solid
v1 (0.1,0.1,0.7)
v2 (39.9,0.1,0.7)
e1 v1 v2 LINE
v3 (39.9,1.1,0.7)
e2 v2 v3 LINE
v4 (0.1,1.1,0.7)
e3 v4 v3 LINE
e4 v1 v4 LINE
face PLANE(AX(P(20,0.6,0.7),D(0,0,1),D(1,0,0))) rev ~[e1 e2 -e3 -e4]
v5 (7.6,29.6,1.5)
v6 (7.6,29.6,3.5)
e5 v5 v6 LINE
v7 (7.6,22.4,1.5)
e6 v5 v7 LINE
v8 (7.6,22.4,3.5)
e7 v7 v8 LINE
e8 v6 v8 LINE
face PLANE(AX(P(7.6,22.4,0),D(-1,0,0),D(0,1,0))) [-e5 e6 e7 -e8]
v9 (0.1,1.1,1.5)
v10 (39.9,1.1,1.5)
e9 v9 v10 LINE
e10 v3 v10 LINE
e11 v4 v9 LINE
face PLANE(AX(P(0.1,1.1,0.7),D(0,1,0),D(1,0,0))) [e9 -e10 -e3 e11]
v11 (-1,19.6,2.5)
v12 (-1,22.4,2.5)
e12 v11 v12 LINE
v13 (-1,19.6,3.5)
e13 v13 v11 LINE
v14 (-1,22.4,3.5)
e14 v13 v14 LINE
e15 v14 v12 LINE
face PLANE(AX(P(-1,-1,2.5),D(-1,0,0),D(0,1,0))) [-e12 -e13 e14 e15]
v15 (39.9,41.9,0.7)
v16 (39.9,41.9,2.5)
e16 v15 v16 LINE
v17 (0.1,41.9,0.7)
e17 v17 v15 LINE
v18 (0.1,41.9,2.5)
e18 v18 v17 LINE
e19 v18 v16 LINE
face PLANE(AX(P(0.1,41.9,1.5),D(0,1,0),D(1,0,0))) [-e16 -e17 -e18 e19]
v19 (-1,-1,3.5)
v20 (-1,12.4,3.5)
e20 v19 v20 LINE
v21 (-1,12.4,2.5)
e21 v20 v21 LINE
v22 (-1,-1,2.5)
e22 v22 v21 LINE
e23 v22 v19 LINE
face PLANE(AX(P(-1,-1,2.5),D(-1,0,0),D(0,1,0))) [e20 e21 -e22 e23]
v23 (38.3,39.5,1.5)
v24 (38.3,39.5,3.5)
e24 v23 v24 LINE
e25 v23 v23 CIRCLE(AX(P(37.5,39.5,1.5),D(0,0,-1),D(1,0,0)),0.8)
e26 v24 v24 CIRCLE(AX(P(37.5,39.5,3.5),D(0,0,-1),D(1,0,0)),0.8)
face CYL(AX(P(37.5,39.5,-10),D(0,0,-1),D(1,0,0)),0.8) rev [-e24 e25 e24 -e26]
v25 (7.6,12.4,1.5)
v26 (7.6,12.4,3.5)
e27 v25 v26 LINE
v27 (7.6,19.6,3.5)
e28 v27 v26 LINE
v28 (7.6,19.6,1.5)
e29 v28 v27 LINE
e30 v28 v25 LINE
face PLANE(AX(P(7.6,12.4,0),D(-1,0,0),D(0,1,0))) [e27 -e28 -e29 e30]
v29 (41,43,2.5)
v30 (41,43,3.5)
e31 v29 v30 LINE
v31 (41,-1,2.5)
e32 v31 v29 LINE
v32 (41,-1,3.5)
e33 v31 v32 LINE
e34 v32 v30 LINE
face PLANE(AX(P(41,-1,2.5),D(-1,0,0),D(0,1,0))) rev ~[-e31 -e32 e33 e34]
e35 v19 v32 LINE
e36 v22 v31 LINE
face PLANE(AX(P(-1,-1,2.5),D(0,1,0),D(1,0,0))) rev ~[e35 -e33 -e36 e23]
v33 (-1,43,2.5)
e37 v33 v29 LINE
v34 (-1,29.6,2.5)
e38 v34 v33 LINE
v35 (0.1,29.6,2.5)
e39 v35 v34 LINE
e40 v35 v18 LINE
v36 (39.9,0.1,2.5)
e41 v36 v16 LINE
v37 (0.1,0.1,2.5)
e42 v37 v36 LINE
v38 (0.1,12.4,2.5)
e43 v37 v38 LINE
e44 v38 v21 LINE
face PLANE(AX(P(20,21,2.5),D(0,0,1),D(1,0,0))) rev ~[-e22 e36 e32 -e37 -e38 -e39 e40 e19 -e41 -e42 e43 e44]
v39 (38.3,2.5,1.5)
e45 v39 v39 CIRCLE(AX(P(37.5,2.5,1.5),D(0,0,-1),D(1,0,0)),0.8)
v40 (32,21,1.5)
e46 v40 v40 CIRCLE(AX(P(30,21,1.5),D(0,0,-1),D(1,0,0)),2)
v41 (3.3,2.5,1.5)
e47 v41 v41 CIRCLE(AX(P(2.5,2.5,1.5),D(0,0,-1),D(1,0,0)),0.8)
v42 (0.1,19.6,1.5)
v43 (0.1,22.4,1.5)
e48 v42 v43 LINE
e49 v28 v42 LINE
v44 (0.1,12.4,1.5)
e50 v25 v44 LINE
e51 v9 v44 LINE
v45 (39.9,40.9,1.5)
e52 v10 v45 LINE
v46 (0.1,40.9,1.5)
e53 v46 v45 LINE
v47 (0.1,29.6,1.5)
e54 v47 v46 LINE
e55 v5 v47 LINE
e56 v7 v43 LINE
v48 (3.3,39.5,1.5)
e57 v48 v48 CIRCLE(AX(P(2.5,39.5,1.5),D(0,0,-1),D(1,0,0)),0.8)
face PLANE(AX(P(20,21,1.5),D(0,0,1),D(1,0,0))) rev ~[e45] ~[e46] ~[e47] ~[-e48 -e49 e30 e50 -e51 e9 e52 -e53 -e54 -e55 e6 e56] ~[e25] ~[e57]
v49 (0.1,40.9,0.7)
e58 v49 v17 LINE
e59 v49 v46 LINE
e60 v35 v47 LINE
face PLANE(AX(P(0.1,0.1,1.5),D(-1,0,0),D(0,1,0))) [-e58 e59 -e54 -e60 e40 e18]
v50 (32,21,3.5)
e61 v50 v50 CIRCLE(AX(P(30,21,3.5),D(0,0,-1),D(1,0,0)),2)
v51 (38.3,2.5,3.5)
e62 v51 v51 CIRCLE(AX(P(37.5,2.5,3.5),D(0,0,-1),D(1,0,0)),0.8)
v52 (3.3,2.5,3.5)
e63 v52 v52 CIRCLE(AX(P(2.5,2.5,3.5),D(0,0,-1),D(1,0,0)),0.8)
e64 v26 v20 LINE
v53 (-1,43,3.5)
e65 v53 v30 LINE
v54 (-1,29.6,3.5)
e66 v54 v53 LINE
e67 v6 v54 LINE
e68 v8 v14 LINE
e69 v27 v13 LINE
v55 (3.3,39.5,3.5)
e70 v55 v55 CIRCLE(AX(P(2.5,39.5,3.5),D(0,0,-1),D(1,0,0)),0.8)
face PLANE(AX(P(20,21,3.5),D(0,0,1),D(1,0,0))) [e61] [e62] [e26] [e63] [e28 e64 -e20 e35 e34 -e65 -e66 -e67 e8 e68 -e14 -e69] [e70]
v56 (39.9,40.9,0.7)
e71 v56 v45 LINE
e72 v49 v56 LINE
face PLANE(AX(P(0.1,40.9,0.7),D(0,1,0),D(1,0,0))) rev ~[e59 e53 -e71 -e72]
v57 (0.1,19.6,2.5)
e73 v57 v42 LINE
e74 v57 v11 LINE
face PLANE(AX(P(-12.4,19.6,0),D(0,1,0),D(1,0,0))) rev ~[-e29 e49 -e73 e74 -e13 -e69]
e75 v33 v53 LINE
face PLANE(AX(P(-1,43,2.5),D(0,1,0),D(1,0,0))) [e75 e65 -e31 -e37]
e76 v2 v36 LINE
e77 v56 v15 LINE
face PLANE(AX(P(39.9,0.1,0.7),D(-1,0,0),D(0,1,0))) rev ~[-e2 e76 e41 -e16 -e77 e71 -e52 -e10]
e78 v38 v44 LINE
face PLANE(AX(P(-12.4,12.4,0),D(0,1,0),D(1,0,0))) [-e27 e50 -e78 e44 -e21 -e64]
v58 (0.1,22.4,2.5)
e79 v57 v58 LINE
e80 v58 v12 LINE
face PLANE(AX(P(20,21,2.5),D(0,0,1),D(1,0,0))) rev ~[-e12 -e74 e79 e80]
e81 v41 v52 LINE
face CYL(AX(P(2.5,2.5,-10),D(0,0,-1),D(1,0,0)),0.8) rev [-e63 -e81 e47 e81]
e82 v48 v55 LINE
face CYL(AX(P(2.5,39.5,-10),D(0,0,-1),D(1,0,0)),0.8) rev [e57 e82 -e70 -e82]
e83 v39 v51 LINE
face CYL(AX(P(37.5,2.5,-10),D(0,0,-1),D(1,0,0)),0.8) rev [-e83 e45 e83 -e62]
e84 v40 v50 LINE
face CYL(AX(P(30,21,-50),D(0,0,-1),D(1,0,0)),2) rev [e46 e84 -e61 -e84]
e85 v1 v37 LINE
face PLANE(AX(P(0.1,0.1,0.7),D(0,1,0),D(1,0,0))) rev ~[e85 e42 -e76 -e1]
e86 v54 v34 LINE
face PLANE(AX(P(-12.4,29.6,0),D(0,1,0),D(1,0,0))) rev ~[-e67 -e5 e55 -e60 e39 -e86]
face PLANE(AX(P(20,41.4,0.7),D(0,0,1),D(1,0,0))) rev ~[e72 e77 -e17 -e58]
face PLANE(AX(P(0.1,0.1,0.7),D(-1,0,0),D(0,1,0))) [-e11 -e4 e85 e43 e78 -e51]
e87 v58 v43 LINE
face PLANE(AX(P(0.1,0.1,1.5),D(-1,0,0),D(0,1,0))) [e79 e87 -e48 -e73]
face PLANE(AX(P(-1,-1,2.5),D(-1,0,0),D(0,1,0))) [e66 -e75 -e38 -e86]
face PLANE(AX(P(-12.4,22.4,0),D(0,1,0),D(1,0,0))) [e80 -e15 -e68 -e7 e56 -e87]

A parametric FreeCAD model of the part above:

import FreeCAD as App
import Part
import Sketcher
from FreeCAD import Vector
Q = App.Units.Quantity

doc = App.newDocument("Part")
params = doc.addObject("Spreadsheet::Sheet", "Params")
for row, (alias, value) in enumerate([
    ("sketch1_diameter", "4 mm"),
    ("pad1_length", "100 mm"),
    ("sketch2_width", "20 mm"),
    ("sketch2_height", "7.2 mm"),
    ("pad2_length", "10 mm"),
    ("sketch3_diameter", "1.6 mm"),
    ("pad3_length", "20 mm"),
    ("sketch4_diameter", "1.6 mm"),
    ("pad4_length", "20 mm"),
    ("sketch5_diameter", "1.6 mm"),
    ("pad5_length", "20 mm"),
    ("sketch6_diameter", "1.6 mm"),
    ("pad6_length", "20 mm"),
    ("sketch7_height", "1 mm"),
    ("sketch7_width", "39.8 mm"),
    ("pad7_length", "0.8 mm"),
    ("sketch8_height", "1 mm"),
    ("sketch8_width", "39.8 mm"),
    ("pad8_length", "0.8 mm"),
    ("sketch9_width", "20 mm"),
    ("sketch9_height", "7.2 mm"),
    ("pad9_length", "10 mm"),
    ("sketch10_width", "42 mm"),
    ("sketch10_height", "44 mm"),
    ("pad10_length", "1 mm"),
    ("sketch11_width", "39.8 mm"),
    ("sketch11_height", "41.8 mm"),
    ("pad11_length", "1 mm"),
], start=1):
    params.set(f"A{row}", alias)
    params.set(f"B{row}", "=" + value)
    params.setAlias(f"B{row}", alias)

body = doc.addObject("PartDesign::Body", "Body")

# Sketch on XY plane
sketch1 = body.newObject("Sketcher::SketchObject", "Sketch")
sketch1.AttachmentSupport = (doc.getObject("XY_Plane"), [""])
sketch1.MapMode = "FlatFace"
sketch1.AttachmentOffset = App.Placement(Vector(0, 0, -50), App.Rotation())
sketch1.addGeometry(Part.Circle(Vector(30, 21, 0), Vector(0, 0, 1), 2), False)
sketch1.addConstraint(Sketcher.Constraint("Diameter", 0, Q("4 mm")))
sketch1.addConstraint(Sketcher.Constraint("DistanceX", -1, 1, 0, 3, Q("30 mm")))
sketch1.addConstraint(Sketcher.Constraint("DistanceY", -1, 1, 0, 3, Q("21 mm")))
sketch1.setExpression("Constraints[0]", "Params.sketch1_diameter")
pad1 = body.newObject("PartDesign::Pad", "Pad")
pad1.Profile = sketch1
pad1.setExpression("Length", "Params.pad1_length")
body2 = doc.addObject("PartDesign::Body", "Body001")

# Sketch on XY plane
sketch2 = body2.newObject("Sketcher::SketchObject", "Sketch001")
sketch2.AttachmentSupport = (doc.getObject("XY_Plane001"), [""])
sketch2.MapMode = "FlatFace"
sketch2.addGeometry(Part.LineSegment(Vector(-12.4, 29.6, 0), Vector(-12.4, 22.4, 0)), False)
sketch2.addGeometry(Part.LineSegment(Vector(-12.4, 22.4, 0), Vector(7.6, 22.4, 0)), False)
sketch2.addGeometry(Part.LineSegment(Vector(7.6, 22.4, 0), Vector(7.6, 29.6, 0)), False)
sketch2.addGeometry(Part.LineSegment(Vector(7.6, 29.6, 0), Vector(-12.4, 29.6, 0)), False)
sketch2.addConstraint(Sketcher.Constraint("Coincident", 0, 2, 1, 1))
sketch2.addConstraint(Sketcher.Constraint("Coincident", 1, 2, 2, 1))
sketch2.addConstraint(Sketcher.Constraint("Coincident", 2, 2, 3, 1))
sketch2.addConstraint(Sketcher.Constraint("Coincident", 3, 2, 0, 1))
sketch2.addConstraint(Sketcher.Constraint("Vertical", 0))
sketch2.addConstraint(Sketcher.Constraint("Horizontal", 1))
sketch2.addConstraint(Sketcher.Constraint("Vertical", 2))
sketch2.addConstraint(Sketcher.Constraint("Horizontal", 3))
sketch2.addConstraint(Sketcher.Constraint("DistanceX", 1, 1, 1, 2, Q("20 mm")))
sketch2.addConstraint(Sketcher.Constraint("DistanceY", 0, 2, 0, 1, Q("7.2 mm")))
sketch2.addConstraint(Sketcher.Constraint("DistanceX", 0, 2, -1, 1, Q("12.4 mm")))
sketch2.addConstraint(Sketcher.Constraint("DistanceY", -1, 1, 0, 2, Q("22.4 mm")))
sketch2.setExpression("Constraints[8]", "Params.sketch2_width")
sketch2.setExpression("Constraints[9]", "Params.sketch2_height")
pad2 = body2.newObject("PartDesign::Pad", "Pad001")
pad2.Profile = sketch2
pad2.setExpression("Length", "Params.pad2_length")
body3 = doc.addObject("PartDesign::Body", "Body002")

# Sketch on XY plane
sketch3 = body3.newObject("Sketcher::SketchObject", "Sketch002")
sketch3.AttachmentSupport = (doc.getObject("XY_Plane002"), [""])
sketch3.MapMode = "FlatFace"
sketch3.AttachmentOffset = App.Placement(Vector(0, 0, -10), App.Rotation())
sketch3.addGeometry(Part.Circle(Vector(37.5, 2.5, 0), Vector(0, 0, 1), 0.8), False)
sketch3.addConstraint(Sketcher.Constraint("Diameter", 0, Q("1.6 mm")))
sketch3.addConstraint(Sketcher.Constraint("DistanceX", -1, 1, 0, 3, Q("37.5 mm")))
sketch3.addConstraint(Sketcher.Constraint("DistanceY", -1, 1, 0, 3, Q("2.5 mm")))
sketch3.setExpression("Constraints[0]", "Params.sketch3_diameter")
pad3 = body3.newObject("PartDesign::Pad", "Pad002")
pad3.Profile = sketch3
pad3.setExpression("Length", "Params.pad3_length")
body4 = doc.addObject("PartDesign::Body", "Body003")

# Sketch on XY plane
sketch4 = body4.newObject("Sketcher::SketchObject", "Sketch003")
sketch4.AttachmentSupport = (doc.getObject("XY_Plane003"), [""])
sketch4.MapMode = "FlatFace"
sketch4.AttachmentOffset = App.Placement(Vector(0, 0, -10), App.Rotation())
sketch4.addGeometry(Part.Circle(Vector(2.5, 2.5, 0), Vector(0, 0, 1), 0.8), False)
sketch4.addConstraint(Sketcher.Constraint("Diameter", 0, Q("1.6 mm")))
sketch4.addConstraint(Sketcher.Constraint("DistanceX", -1, 1, 0, 3, Q("2.5 mm")))
sketch4.addConstraint(Sketcher.Constraint("DistanceY", -1, 1, 0, 3, Q("2.5 mm")))
sketch4.setExpression("Constraints[0]", "Params.sketch4_diameter")
pad4 = body4.newObject("PartDesign::Pad", "Pad003")
pad4.Profile = sketch4
pad4.setExpression("Length", "Params.pad4_length")
body5 = doc.addObject("PartDesign::Body", "Body004")

# Sketch on XY plane
sketch5 = body5.newObject("Sketcher::SketchObject", "Sketch004")
sketch5.AttachmentSupport = (doc.getObject("XY_Plane004"), [""])
sketch5.MapMode = "FlatFace"
sketch5.AttachmentOffset = App.Placement(Vector(0, 0, -10), App.Rotation())
sketch5.addGeometry(Part.Circle(Vector(37.5, 39.5, 0), Vector(0, 0, 1), 0.8), False)
sketch5.addConstraint(Sketcher.Constraint("Diameter", 0, Q("1.6 mm")))
sketch5.addConstraint(Sketcher.Constraint("DistanceX", -1, 1, 0, 3, Q("37.5 mm")))
sketch5.addConstraint(Sketcher.Constraint("DistanceY", -1, 1, 0, 3, Q("39.5 mm")))
sketch5.setExpression("Constraints[0]", "Params.sketch5_diameter")
pad5 = body5.newObject("PartDesign::Pad", "Pad004")
pad5.Profile = sketch5
pad5.setExpression("Length", "Params.pad5_length")
body6 = doc.addObject("PartDesign::Body", "Body005")
body6.AllowCompound = True

# Sketch on XY plane
sketch6 = body6.newObject("Sketcher::SketchObject", "Sketch005")
sketch6.AttachmentSupport = (doc.getObject("XY_Plane005"), [""])
sketch6.MapMode = "FlatFace"
sketch6.AttachmentOffset = App.Placement(Vector(0, 0, -10), App.Rotation())
sketch6.addGeometry(Part.Circle(Vector(2.5, 39.5, 0), Vector(0, 0, 1), 0.8), False)
sketch6.addConstraint(Sketcher.Constraint("Diameter", 0, Q("1.6 mm")))
sketch6.addConstraint(Sketcher.Constraint("DistanceX", -1, 1, 0, 3, Q("2.5 mm")))
sketch6.addConstraint(Sketcher.Constraint("DistanceY", -1, 1, 0, 3, Q("39.5 mm")))
sketch6.setExpression("Constraints[0]", "Params.sketch6_diameter")
pad6 = body6.newObject("PartDesign::Pad", "Pad005")
pad6.Profile = sketch6
pad6.setExpression("Length", "Params.pad6_length")
doc.recompute()

boolean = body6.newObject("PartDesign::Boolean", "Boolean")
boolean.Type = "Fuse"
boolean.addObjects([body3])
doc.recompute()

boolean2 = body6.newObject("PartDesign::Boolean", "Boolean001")
boolean2.Type = "Fuse"
boolean2.addObjects([body4])
doc.recompute()

boolean3 = body6.newObject("PartDesign::Boolean", "Boolean002")
boolean3.Type = "Fuse"
boolean3.addObjects([body5])
body7 = doc.addObject("PartDesign::Body", "Body006")

# Sketch on XY plane
sketch7 = body7.newObject("Sketcher::SketchObject", "Sketch006")
sketch7.AttachmentSupport = (doc.getObject("XY_Plane006"), [""])
sketch7.MapMode = "FlatFace"
sketch7.AttachmentOffset = App.Placement(Vector(0, 0, 0.7), App.Rotation())
sketch7.addGeometry(Part.LineSegment(Vector(0.1, 1.1, 0), Vector(0.1, 0.1, 0)), False)
sketch7.addGeometry(Part.LineSegment(Vector(0.1, 0.1, 0), Vector(39.9, 0.1, 0)), False)
sketch7.addGeometry(Part.LineSegment(Vector(39.9, 0.1, 0), Vector(39.9, 1.1, 0)), False)
sketch7.addGeometry(Part.LineSegment(Vector(39.9, 1.1, 0), Vector(0.1, 1.1, 0)), False)
sketch7.addConstraint(Sketcher.Constraint("Coincident", 0, 2, 1, 1))
sketch7.addConstraint(Sketcher.Constraint("Coincident", 1, 2, 2, 1))
sketch7.addConstraint(Sketcher.Constraint("Coincident", 2, 2, 3, 1))
sketch7.addConstraint(Sketcher.Constraint("Coincident", 3, 2, 0, 1))
sketch7.addConstraint(Sketcher.Constraint("Vertical", 0))
sketch7.addConstraint(Sketcher.Constraint("Horizontal", 1))
sketch7.addConstraint(Sketcher.Constraint("Vertical", 2))
sketch7.addConstraint(Sketcher.Constraint("Horizontal", 3))
sketch7.addConstraint(Sketcher.Constraint("DistanceY", 0, 2, 0, 1, Q("1 mm")))
sketch7.addConstraint(Sketcher.Constraint("DistanceX", 1, 1, 1, 2, Q("39.8 mm")))
sketch7.addConstraint(Sketcher.Constraint("DistanceX", -1, 1, 0, 2, Q("0.1 mm")))
sketch7.addConstraint(Sketcher.Constraint("DistanceY", -1, 1, 0, 2, Q("0.1 mm")))
sketch7.setExpression("Constraints[8]", "Params.sketch7_height")
sketch7.setExpression("Constraints[9]", "Params.sketch7_width")
pad7 = body7.newObject("PartDesign::Pad", "Pad006")
pad7.Profile = sketch7
pad7.setExpression("Length", "Params.pad7_length")
body8 = doc.addObject("PartDesign::Body", "Body007")
body8.AllowCompound = True

# Sketch on XY plane
sketch8 = body8.newObject("Sketcher::SketchObject", "Sketch007")
sketch8.AttachmentSupport = (doc.getObject("XY_Plane007"), [""])
sketch8.MapMode = "FlatFace"
sketch8.AttachmentOffset = App.Placement(Vector(0, 0, 0.7), App.Rotation())
sketch8.addGeometry(Part.LineSegment(Vector(0.1, 41.9, 0), Vector(0.1, 40.9, 0)), False)
sketch8.addGeometry(Part.LineSegment(Vector(0.1, 40.9, 0), Vector(39.9, 40.9, 0)), False)
sketch8.addGeometry(Part.LineSegment(Vector(39.9, 40.9, 0), Vector(39.9, 41.9, 0)), False)
sketch8.addGeometry(Part.LineSegment(Vector(39.9, 41.9, 0), Vector(0.1, 41.9, 0)), False)
sketch8.addConstraint(Sketcher.Constraint("Coincident", 0, 2, 1, 1))
sketch8.addConstraint(Sketcher.Constraint("Coincident", 1, 2, 2, 1))
sketch8.addConstraint(Sketcher.Constraint("Coincident", 2, 2, 3, 1))
sketch8.addConstraint(Sketcher.Constraint("Coincident", 3, 2, 0, 1))
sketch8.addConstraint(Sketcher.Constraint("Vertical", 0))
sketch8.addConstraint(Sketcher.Constraint("Horizontal", 1))
sketch8.addConstraint(Sketcher.Constraint("Vertical", 2))
sketch8.addConstraint(Sketcher.Constraint("Horizontal", 3))
sketch8.addConstraint(Sketcher.Constraint("DistanceY", 0, 2, 0, 1, Q("1 mm")))
sketch8.addConstraint(Sketcher.Constraint("DistanceX", 1, 1, 1, 2, Q("39.8 mm")))
sketch8.addConstraint(Sketcher.Constraint("DistanceX", -1, 1, 0, 2, Q("0.1 mm")))
sketch8.addConstraint(Sketcher.Constraint("DistanceY", -1, 1, 0, 2, Q("40.9 mm")))
sketch8.setExpression("Constraints[8]", "Params.sketch8_height")
sketch8.setExpression("Constraints[9]", "Params.sketch8_width")
pad8 = body8.newObject("PartDesign::Pad", "Pad007")
pad8.Profile = sketch8
pad8.setExpression("Length", "Params.pad8_length")
doc.recompute()

boolean4 = body8.newObject("PartDesign::Boolean", "Boolean003")
boolean4.Type = "Fuse"
boolean4.addObjects([body7])
body9 = doc.addObject("PartDesign::Body", "Body008")

# Sketch on XY plane
sketch9 = body9.newObject("Sketcher::SketchObject", "Sketch008")
sketch9.AttachmentSupport = (doc.getObject("XY_Plane008"), [""])
sketch9.MapMode = "FlatFace"
sketch9.addGeometry(Part.LineSegment(Vector(-12.4, 19.6, 0), Vector(-12.4, 12.4, 0)), False)
sketch9.addGeometry(Part.LineSegment(Vector(-12.4, 12.4, 0), Vector(7.6, 12.4, 0)), False)
sketch9.addGeometry(Part.LineSegment(Vector(7.6, 12.4, 0), Vector(7.6, 19.6, 0)), False)
sketch9.addGeometry(Part.LineSegment(Vector(7.6, 19.6, 0), Vector(-12.4, 19.6, 0)), False)
sketch9.addConstraint(Sketcher.Constraint("Coincident", 0, 2, 1, 1))
sketch9.addConstraint(Sketcher.Constraint("Coincident", 1, 2, 2, 1))
sketch9.addConstraint(Sketcher.Constraint("Coincident", 2, 2, 3, 1))
sketch9.addConstraint(Sketcher.Constraint("Coincident", 3, 2, 0, 1))
sketch9.addConstraint(Sketcher.Constraint("Vertical", 0))
sketch9.addConstraint(Sketcher.Constraint("Horizontal", 1))
sketch9.addConstraint(Sketcher.Constraint("Vertical", 2))
sketch9.addConstraint(Sketcher.Constraint("Horizontal", 3))
sketch9.addConstraint(Sketcher.Constraint("DistanceX", 1, 1, 1, 2, Q("20 mm")))
sketch9.addConstraint(Sketcher.Constraint("DistanceY", 0, 2, 0, 1, Q("7.2 mm")))
sketch9.addConstraint(Sketcher.Constraint("DistanceX", 0, 2, -1, 1, Q("12.4 mm")))
sketch9.addConstraint(Sketcher.Constraint("DistanceY", -1, 1, 0, 2, Q("12.4 mm")))
sketch9.setExpression("Constraints[8]", "Params.sketch9_width")
sketch9.setExpression("Constraints[9]", "Params.sketch9_height")
pad9 = body9.newObject("PartDesign::Pad", "Pad008")
pad9.Profile = sketch9
pad9.setExpression("Length", "Params.pad9_length")
body10 = doc.addObject("PartDesign::Body", "Body009")

# Sketch on XY plane
sketch10 = body10.newObject("Sketcher::SketchObject", "Sketch009")
sketch10.AttachmentSupport = (doc.getObject("XY_Plane009"), [""])
sketch10.MapMode = "FlatFace"
sketch10.AttachmentOffset = App.Placement(Vector(0, 0, 2.5), App.Rotation())
sketch10.addGeometry(Part.LineSegment(Vector(-1, 43, 0), Vector(-1, -1, 0)), False)
sketch10.addGeometry(Part.LineSegment(Vector(-1, -1, 0), Vector(41, -1, 0)), False)
sketch10.addGeometry(Part.LineSegment(Vector(41, -1, 0), Vector(41, 43, 0)), False)
sketch10.addGeometry(Part.LineSegment(Vector(41, 43, 0), Vector(-1, 43, 0)), False)
sketch10.addConstraint(Sketcher.Constraint("Coincident", 0, 2, 1, 1))
sketch10.addConstraint(Sketcher.Constraint("Coincident", 1, 2, 2, 1))
sketch10.addConstraint(Sketcher.Constraint("Coincident", 2, 2, 3, 1))
sketch10.addConstraint(Sketcher.Constraint("Coincident", 3, 2, 0, 1))
sketch10.addConstraint(Sketcher.Constraint("Vertical", 0))
sketch10.addConstraint(Sketcher.Constraint("Horizontal", 1))
sketch10.addConstraint(Sketcher.Constraint("Vertical", 2))
sketch10.addConstraint(Sketcher.Constraint("Horizontal", 3))
sketch10.addConstraint(Sketcher.Constraint("DistanceX", 1, 1, 1, 2, Q("42 mm")))
sketch10.addConstraint(Sketcher.Constraint("DistanceY", 0, 2, 0, 1, Q("44 mm")))
sketch10.addConstraint(Sketcher.Constraint("DistanceX", 0, 2, -1, 1, Q("1 mm")))
sketch10.addConstraint(Sketcher.Constraint("DistanceY", 0, 2, -1, 1, Q("1 mm")))
sketch10.setExpression("Constraints[8]", "Params.sketch10_width")
sketch10.setExpression("Constraints[9]", "Params.sketch10_height")
pad10 = body10.newObject("PartDesign::Pad", "Pad009")
pad10.Profile = sketch10
pad10.setExpression("Length", "Params.pad10_length")
body11 = doc.addObject("PartDesign::Body", "Body010")

# Sketch on XY plane
sketch11 = body11.newObject("Sketcher::SketchObject", "Sketch010")
sketch11.AttachmentSupport = (doc.getObject("XY_Plane010"), [""])
sketch11.MapMode = "FlatFace"
sketch11.AttachmentOffset = App.Placement(Vector(0, 0, 1.5), App.Rotation())
sketch11.addGeometry(Part.LineSegment(Vector(0.1, 41.9, 0), Vector(0.1, 0.1, 0)), False)
sketch11.addGeometry(Part.LineSegment(Vector(0.1, 0.1, 0), Vector(39.9, 0.1, 0)), False)
sketch11.addGeometry(Part.LineSegment(Vector(39.9, 0.1, 0), Vector(39.9, 41.9, 0)), False)
sketch11.addGeometry(Part.LineSegment(Vector(39.9, 41.9, 0), Vector(0.1, 41.9, 0)), False)
sketch11.addConstraint(Sketcher.Constraint("Coincident", 0, 2, 1, 1))
sketch11.addConstraint(Sketcher.Constraint("Coincident", 1, 2, 2, 1))
sketch11.addConstraint(Sketcher.Constraint("Coincident", 2, 2, 3, 1))
sketch11.addConstraint(Sketcher.Constraint("Coincident", 3, 2, 0, 1))
sketch11.addConstraint(Sketcher.Constraint("Vertical", 0))
sketch11.addConstraint(Sketcher.Constraint("Horizontal", 1))
sketch11.addConstraint(Sketcher.Constraint("Vertical", 2))
sketch11.addConstraint(Sketcher.Constraint("Horizontal", 3))
sketch11.addConstraint(Sketcher.Constraint("DistanceX", 1, 1, 1, 2, Q("39.8 mm")))
sketch11.addConstraint(Sketcher.Constraint("DistanceY", 0, 2, 0, 1, Q("41.8 mm")))
sketch11.addConstraint(Sketcher.Constraint("DistanceX", -1, 1, 0, 2, Q("0.1 mm")))
sketch11.addConstraint(Sketcher.Constraint("DistanceY", -1, 1, 0, 2, Q("0.1 mm")))
sketch11.setExpression("Constraints[8]", "Params.sketch11_width")
sketch11.setExpression("Constraints[9]", "Params.sketch11_height")
pad11 = body11.newObject("PartDesign::Pad", "Pad010")
pad11.Profile = sketch11
pad11.setExpression("Length", "Params.pad11_length")
doc.recompute()

boolean5 = body11.newObject("PartDesign::Boolean", "Boolean004")
boolean5.Type = "Fuse"
boolean5.addObjects([body10])
doc.recompute()

boolean6 = body11.newObject("PartDesign::Boolean", "Boolean005")
boolean6.Type = "Cut"
boolean6.addObjects([body9])
doc.recompute()

boolean7 = body11.newObject("PartDesign::Boolean", "Boolean006")
boolean7.Type = "Fuse"
boolean7.addObjects([body8])
doc.recompute()

boolean8 = body11.newObject("PartDesign::Boolean", "Boolean007")
boolean8.Type = "Cut"
boolean8.addObjects([body6])
doc.recompute()

boolean9 = body11.newObject("PartDesign::Boolean", "Boolean008")
boolean9.Type = "Cut"
boolean9.addObjects([body2])
doc.recompute()

boolean10 = body11.newObject("PartDesign::Boolean", "Boolean009")
boolean10.Type = "Cut"
boolean10.addObjects([body])

doc.recompute()
